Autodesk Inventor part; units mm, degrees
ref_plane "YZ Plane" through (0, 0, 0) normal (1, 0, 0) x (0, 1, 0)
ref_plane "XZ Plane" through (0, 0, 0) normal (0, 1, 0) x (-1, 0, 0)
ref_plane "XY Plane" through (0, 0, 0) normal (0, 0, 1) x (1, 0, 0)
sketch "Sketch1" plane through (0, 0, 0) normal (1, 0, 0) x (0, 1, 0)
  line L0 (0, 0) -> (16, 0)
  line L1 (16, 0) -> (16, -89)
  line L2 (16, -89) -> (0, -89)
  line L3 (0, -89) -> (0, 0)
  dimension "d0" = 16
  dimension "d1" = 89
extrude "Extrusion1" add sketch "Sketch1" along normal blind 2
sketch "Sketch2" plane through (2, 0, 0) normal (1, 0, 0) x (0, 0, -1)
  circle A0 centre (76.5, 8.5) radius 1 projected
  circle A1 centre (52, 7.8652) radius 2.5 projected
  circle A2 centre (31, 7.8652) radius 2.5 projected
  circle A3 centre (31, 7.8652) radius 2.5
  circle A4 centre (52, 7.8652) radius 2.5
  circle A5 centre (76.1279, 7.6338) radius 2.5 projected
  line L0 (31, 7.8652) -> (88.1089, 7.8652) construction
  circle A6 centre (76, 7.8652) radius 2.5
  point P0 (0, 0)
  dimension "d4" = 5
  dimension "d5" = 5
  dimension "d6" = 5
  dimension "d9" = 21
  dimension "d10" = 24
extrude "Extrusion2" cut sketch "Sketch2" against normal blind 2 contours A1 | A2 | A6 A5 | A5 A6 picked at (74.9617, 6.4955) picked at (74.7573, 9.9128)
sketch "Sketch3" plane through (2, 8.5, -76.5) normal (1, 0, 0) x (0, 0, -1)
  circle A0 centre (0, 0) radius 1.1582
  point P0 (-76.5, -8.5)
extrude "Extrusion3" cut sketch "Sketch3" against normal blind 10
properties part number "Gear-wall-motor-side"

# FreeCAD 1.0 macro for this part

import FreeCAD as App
import Part
import Sketcher
Q = App.Units.Quantity

doc = App.newDocument("Part")
body = doc.addObject("PartDesign::Body", "Body")
body.AllowCompound = True

# Sketch on YZ plane
sketch1 = body.newObject("Sketcher::SketchObject", "Sketch")
sketch1.AttachmentSupport = (doc.getObject("YZ_Plane"), [""])
sketch1.MapMode = "FlatFace"
sketch1.addGeometry([
    Part.LineSegment(App.Vector(16, 0, 0), App.Vector(0, 0, 0)),
    Part.LineSegment(App.Vector(0, 0, 0), App.Vector(0, -89, 0)),
    Part.LineSegment(App.Vector(0, -89, 0), App.Vector(16, -89, 0)),
    Part.LineSegment(App.Vector(16, -89, 0), App.Vector(16, 0, 0)),
], False)
sketch1.addConstraint([
    Sketcher.Constraint("Coincident", 0, 2, 1, 1),
    Sketcher.Constraint("Coincident", 1, 2, 2, 1),
    Sketcher.Constraint("Coincident", 2, 2, 3, 1),
    Sketcher.Constraint("Coincident", 3, 2, 0, 1),
    Sketcher.Constraint("Horizontal", 0),
    Sketcher.Constraint("Vertical", 1),
    Sketcher.Constraint("Horizontal", 2),
    Sketcher.Constraint("Vertical", 3),
    Sketcher.Constraint("Coincident", 0, 2, -1, 1),
    Sketcher.Constraint("DistanceX", 0, 2, 0, 1, Q("16 mm")),
    Sketcher.Constraint("DistanceY", 1, 2, 1, 1, Q("89 mm")),
])
pad1 = body.newObject("PartDesign::Pad", "Pad")
pad1.Profile = sketch1
pad1.Length = 2

# Sketch on YZ plane
sketch2 = body.newObject("Sketcher::SketchObject", "Sketch001")
sketch2.AttachmentSupport = (doc.getObject("YZ_Plane"), [""])
sketch2.MapMode = "FlatFace"
sketch2.AttachmentOffset = App.Placement(App.Vector(0, 0, 2), App.Rotation())
sketch2.addGeometry([
    Part.Circle(App.Vector(7.9, -52, 0), App.Vector(0, 0, 1), 2.5),
    Part.Circle(App.Vector(7.9, -31, 0), App.Vector(0, 0, 1), 2.5),
    Part.Circle(App.Vector(7.9, -76, 0), App.Vector(0, 0, 1), 2.5),
    Part.Circle(App.Vector(8.5, -76.5, 0), App.Vector(0, 0, 1), 1),
], False)
sketch2.addConstraint([
    Sketcher.Constraint("Equal", 0, 1),
    Sketcher.Constraint("Equal", 1, 2),
    Sketcher.Constraint("Vertical", 0, 3, 1, 3),
    Sketcher.Constraint("Vertical", 1, 3, 2, 3),
    Sketcher.Constraint("Diameter", 0, Q("5 mm")),
    Sketcher.Constraint("Diameter", 3, Q("2 mm")),
    Sketcher.Constraint("DistanceY", 0, 3, 1, 3, Q("21 mm")),
    Sketcher.Constraint("DistanceY", 2, 3, 0, 3, Q("24 mm")),
    Sketcher.Constraint("DistanceY", 0, 3, -1, 1, Q("52 mm")),
    Sketcher.Constraint("DistanceX", -1, 1, 3, 3, Q("8.5 mm")),
    Sketcher.Constraint("DistanceY", 3, 3, -1, 1, Q("76.5 mm")),
    Sketcher.Constraint("DistanceX", -1, 1, 0, 3, Q("7.8652 mm")),
])
pocket1 = body.newObject("PartDesign::Pocket", "Pocket")
pocket1.Profile = sketch2
pocket1.Length = 2

# Sketch on YZ plane
sketch3 = body.newObject("Sketcher::SketchObject", "Sketch002")
sketch3.AttachmentSupport = (doc.getObject("YZ_Plane"), [""])
sketch3.MapMode = "FlatFace"
sketch3.AttachmentOffset = App.Placement(App.Vector(0, 0, 2), App.Rotation())
sketch3.addGeometry(Part.Circle(App.Vector(8.5, -76.5, 0), App.Vector(0, 0, 1), 1.2), False)
sketch3.addConstraint([
    Sketcher.Constraint("Diameter", 0, Q("2.3164 mm")),
    Sketcher.Constraint("DistanceX", -1, 1, 0, 3, Q("8.5 mm")),
    Sketcher.Constraint("DistanceY", 0, 3, -1, 1, Q("76.5 mm")),
])
pocket2 = body.newObject("PartDesign::Pocket", "Pocket001")
pocket2.Profile = sketch3
pocket2.Length = 10

doc.recompute()
